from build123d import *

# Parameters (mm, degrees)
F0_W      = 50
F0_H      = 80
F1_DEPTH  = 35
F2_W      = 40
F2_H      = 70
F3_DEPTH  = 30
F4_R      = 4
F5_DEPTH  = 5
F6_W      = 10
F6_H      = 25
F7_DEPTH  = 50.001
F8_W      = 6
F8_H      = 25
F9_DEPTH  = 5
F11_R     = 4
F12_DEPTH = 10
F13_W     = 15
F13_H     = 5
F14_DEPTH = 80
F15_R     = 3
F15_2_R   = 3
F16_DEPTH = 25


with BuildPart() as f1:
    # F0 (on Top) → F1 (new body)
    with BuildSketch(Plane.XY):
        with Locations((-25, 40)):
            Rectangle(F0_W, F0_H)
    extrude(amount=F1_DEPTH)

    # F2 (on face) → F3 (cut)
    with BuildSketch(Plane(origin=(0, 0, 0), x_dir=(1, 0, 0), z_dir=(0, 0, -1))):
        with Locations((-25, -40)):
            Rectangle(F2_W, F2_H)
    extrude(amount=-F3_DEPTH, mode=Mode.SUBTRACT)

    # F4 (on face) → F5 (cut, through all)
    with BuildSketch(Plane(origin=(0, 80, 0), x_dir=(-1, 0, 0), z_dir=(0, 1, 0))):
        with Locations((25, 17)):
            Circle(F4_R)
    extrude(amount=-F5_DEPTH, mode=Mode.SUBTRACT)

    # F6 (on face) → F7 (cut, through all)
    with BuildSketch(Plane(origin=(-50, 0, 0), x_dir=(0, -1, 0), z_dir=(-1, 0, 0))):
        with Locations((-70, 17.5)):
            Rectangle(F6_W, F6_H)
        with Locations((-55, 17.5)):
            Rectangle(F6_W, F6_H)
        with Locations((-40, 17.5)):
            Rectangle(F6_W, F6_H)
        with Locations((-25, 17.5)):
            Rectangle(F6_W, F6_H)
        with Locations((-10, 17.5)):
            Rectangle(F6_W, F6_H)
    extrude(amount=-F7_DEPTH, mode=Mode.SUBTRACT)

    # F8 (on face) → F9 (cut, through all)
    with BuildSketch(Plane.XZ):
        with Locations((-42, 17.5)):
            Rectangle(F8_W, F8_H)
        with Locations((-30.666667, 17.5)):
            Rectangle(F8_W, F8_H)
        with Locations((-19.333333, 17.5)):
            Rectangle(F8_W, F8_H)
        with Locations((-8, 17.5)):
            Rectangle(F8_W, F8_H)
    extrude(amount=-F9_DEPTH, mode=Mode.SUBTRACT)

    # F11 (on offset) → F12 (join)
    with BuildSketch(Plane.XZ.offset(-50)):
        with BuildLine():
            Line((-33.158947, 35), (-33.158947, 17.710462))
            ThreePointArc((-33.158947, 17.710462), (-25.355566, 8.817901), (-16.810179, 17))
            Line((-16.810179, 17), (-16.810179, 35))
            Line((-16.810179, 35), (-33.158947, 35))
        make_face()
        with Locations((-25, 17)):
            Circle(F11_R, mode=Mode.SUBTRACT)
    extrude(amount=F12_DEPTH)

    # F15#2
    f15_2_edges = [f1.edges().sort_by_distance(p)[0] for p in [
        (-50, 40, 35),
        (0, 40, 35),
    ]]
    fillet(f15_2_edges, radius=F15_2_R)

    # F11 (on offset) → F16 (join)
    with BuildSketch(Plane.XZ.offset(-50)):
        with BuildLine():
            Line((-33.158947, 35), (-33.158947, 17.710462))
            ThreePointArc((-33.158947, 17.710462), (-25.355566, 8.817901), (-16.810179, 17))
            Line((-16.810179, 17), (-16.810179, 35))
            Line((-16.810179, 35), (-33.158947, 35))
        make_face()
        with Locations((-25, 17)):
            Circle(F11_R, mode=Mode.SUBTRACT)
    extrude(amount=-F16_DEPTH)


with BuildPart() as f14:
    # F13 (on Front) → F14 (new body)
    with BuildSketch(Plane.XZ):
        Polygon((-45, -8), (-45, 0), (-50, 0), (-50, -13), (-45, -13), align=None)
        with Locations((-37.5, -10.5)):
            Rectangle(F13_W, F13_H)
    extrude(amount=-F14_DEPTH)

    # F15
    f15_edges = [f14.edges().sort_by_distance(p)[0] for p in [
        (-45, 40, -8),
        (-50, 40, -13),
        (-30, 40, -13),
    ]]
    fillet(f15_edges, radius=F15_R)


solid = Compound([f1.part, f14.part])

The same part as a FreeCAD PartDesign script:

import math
import FreeCAD as App
import Part
import Sketcher

V = App.Vector
Q = App.Units.Quantity


def edges_at(feature, points):
    """Names of the edges that pass closest to the given points."""
    edges = feature.Shape.Edges
    near = lambda p: min(range(len(edges)), key=lambda i: edges[i].distToShape(Part.Vertex(*p))[0])
    return sorted({f"Edge{near(p) + 1}" for p in points})

doc = App.newDocument("Part")
body = doc.addObject("PartDesign::Body", "Body")

sketch1 = body.newObject("Sketcher::SketchObject", "Sketch")
sketch1.AttachmentSupport = (doc.getObject("XY_Plane"), [""])
sketch1.MapMode = "FlatFace"
sketch1.addGeometry(Part.LineSegment(V(-50, 80, 0), V(-50, 0, 0)), False)
sketch1.addGeometry(Part.LineSegment(V(-50, 0, 0), V(0, 0, 0)), False)
sketch1.addGeometry(Part.LineSegment(V(0, 0, 0), V(0, 80, 0)), False)
sketch1.addGeometry(Part.LineSegment(V(0, 80, 0), V(-50, 80, 0)), False)
sketch1.addConstraint(Sketcher.Constraint("Coincident", 0, 2, 1, 1))
sketch1.addConstraint(Sketcher.Constraint("Coincident", 1, 2, 2, 1))
sketch1.addConstraint(Sketcher.Constraint("Coincident", 2, 2, 3, 1))
sketch1.addConstraint(Sketcher.Constraint("Coincident", 3, 2, 0, 1))
sketch1.addConstraint(Sketcher.Constraint("Vertical", 0))
sketch1.addConstraint(Sketcher.Constraint("Horizontal", 1))
sketch1.addConstraint(Sketcher.Constraint("Vertical", 2))
sketch1.addConstraint(Sketcher.Constraint("Horizontal", 3))
sketch1.addConstraint(Sketcher.Constraint("Coincident", 1, 2, -1, 1))
sketch1.addConstraint(Sketcher.Constraint("DistanceX", 1, 1, 1, 2, Q("50 mm")))
sketch1.addConstraint(Sketcher.Constraint("DistanceY", 0, 2, 0, 1, Q("80 mm")))
pad1 = body.newObject("PartDesign::Pad", "Pad")
pad1.Profile = sketch1
pad1.Length = 35

sketch2 = body.newObject("Sketcher::SketchObject", "Sketch001")
sketch2.AttachmentSupport = (doc.getObject("XY_Plane"), [""])
sketch2.MapMode = "FlatFace"
sketch2.addGeometry(Part.LineSegment(V(-45, 5, 0), V(-45, 75, 0)), False)
sketch2.addGeometry(Part.LineSegment(V(-45, 75, 0), V(-5, 75, 0)), False)
sketch2.addGeometry(Part.LineSegment(V(-5, 75, 0), V(-5, 5, 0)), False)
sketch2.addGeometry(Part.LineSegment(V(-5, 5, 0), V(-45, 5, 0)), False)
sketch2.addConstraint(Sketcher.Constraint("Coincident", 0, 2, 1, 1))
sketch2.addConstraint(Sketcher.Constraint("Coincident", 1, 2, 2, 1))
sketch2.addConstraint(Sketcher.Constraint("Coincident", 2, 2, 3, 1))
sketch2.addConstraint(Sketcher.Constraint("Coincident", 3, 2, 0, 1))
sketch2.addConstraint(Sketcher.Constraint("Vertical", 0))
sketch2.addConstraint(Sketcher.Constraint("Horizontal", 1))
sketch2.addConstraint(Sketcher.Constraint("Vertical", 2))
sketch2.addConstraint(Sketcher.Constraint("Horizontal", 3))
sketch2.addConstraint(Sketcher.Constraint("DistanceX", 1, 1, 1, 2, Q("40 mm")))
sketch2.addConstraint(Sketcher.Constraint("DistanceY", 0, 1, 0, 2, Q("70 mm")))
sketch2.addConstraint(Sketcher.Constraint("DistanceX", 0, 2, -1, 1, Q("45 mm")))
sketch2.addConstraint(Sketcher.Constraint("DistanceY", -1, 1, 0, 2, Q("75 mm")))
pocket1 = body.newObject("PartDesign::Pocket", "Pocket")
pocket1.Profile = sketch2
pocket1.Length = 30
pocket1.Reversed = True

sketch3 = body.newObject("Sketcher::SketchObject", "Sketch002")
sketch3.AttachmentSupport = (doc.getObject("XZ_Plane"), [""])
sketch3.MapMode = "FlatFace"
sketch3.AttachmentOffset = App.Placement(V(0, 0, -80), App.Rotation())
sketch3.addGeometry(Part.Circle(V(-25, 17, 0), V(0, 0, 1), 4), False)
sketch3.addConstraint(Sketcher.Constraint("Diameter", 0, Q("8 mm")))
sketch3.addConstraint(Sketcher.Constraint("DistanceX", 0, 3, -1, 1, Q("25 mm")))
sketch3.addConstraint(Sketcher.Constraint("DistanceY", -1, 1, 0, 3, Q("17 mm")))
pocket2 = body.newObject("PartDesign::Pocket", "Pocket001")
pocket2.Profile = sketch3
pocket2.Length = 5
pocket2.Reversed = True

sketch4 = body.newObject("Sketcher::SketchObject", "Sketch003")
sketch4.AttachmentSupport = (doc.getObject("YZ_Plane"), [""])
sketch4.MapMode = "FlatFace"
sketch4.AttachmentOffset = App.Placement(V(0, 0, -50), App.Rotation())
sketch4.addGeometry(Part.LineSegment(V(75, 30, 0), V(75, 5, 0)), False)
sketch4.addGeometry(Part.LineSegment(V(75, 5, 0), V(65, 5, 0)), False)
sketch4.addGeometry(Part.LineSegment(V(65, 5, 0), V(65, 30, 0)), False)
sketch4.addGeometry(Part.LineSegment(V(65, 30, 0), V(75, 30, 0)), False)
sketch4.addGeometry(Part.LineSegment(V(60, 30, 0), V(60, 5, 0)), False)
sketch4.addGeometry(Part.LineSegment(V(60, 5, 0), V(50, 5, 0)), False)
sketch4.addGeometry(Part.LineSegment(V(50, 5, 0), V(50, 30, 0)), False)
sketch4.addGeometry(Part.LineSegment(V(50, 30, 0), V(60, 30, 0)), False)
sketch4.addGeometry(Part.LineSegment(V(45, 30, 0), V(45, 5, 0)), False)
sketch4.addGeometry(Part.LineSegment(V(45, 5, 0), V(35, 5, 0)), False)
sketch4.addGeometry(Part.LineSegment(V(35, 5, 0), V(35, 30, 0)), False)
sketch4.addGeometry(Part.LineSegment(V(35, 30, 0), V(45, 30, 0)), False)
sketch4.addGeometry(Part.LineSegment(V(30, 30, 0), V(30, 5, 0)), False)
sketch4.addGeometry(Part.LineSegment(V(30, 5, 0), V(20, 5, 0)), False)
sketch4.addGeometry(Part.LineSegment(V(20, 5, 0), V(20, 30, 0)), False)
sketch4.addGeometry(Part.LineSegment(V(20, 30, 0), V(30, 30, 0)), False)
sketch4.addGeometry(Part.LineSegment(V(15, 30, 0), V(15, 5, 0)), False)
sketch4.addGeometry(Part.LineSegment(V(15, 5, 0), V(5, 5, 0)), False)
sketch4.addGeometry(Part.LineSegment(V(5, 5, 0), V(5, 30, 0)), False)
sketch4.addGeometry(Part.LineSegment(V(5, 30, 0), V(15, 30, 0)), False)
sketch4.addConstraint(Sketcher.Constraint("Coincident", 0, 2, 1, 1))
sketch4.addConstraint(Sketcher.Constraint("Coincident", 1, 2, 2, 1))
sketch4.addConstraint(Sketcher.Constraint("Coincident", 2, 2, 3, 1))
sketch4.addConstraint(Sketcher.Constraint("Coincident", 3, 2, 0, 1))
sketch4.addConstraint(Sketcher.Constraint("Coincident", 4, 2, 5, 1))
sketch4.addConstraint(Sketcher.Constraint("Coincident", 5, 2, 6, 1))
sketch4.addConstraint(Sketcher.Constraint("Coincident", 6, 2, 7, 1))
sketch4.addConstraint(Sketcher.Constraint("Coincident", 7, 2, 4, 1))
sketch4.addConstraint(Sketcher.Constraint("Coincident", 8, 2, 9, 1))
sketch4.addConstraint(Sketcher.Constraint("Coincident", 9, 2, 10, 1))
sketch4.addConstraint(Sketcher.Constraint("Coincident", 10, 2, 11, 1))
sketch4.addConstraint(Sketcher.Constraint("Coincident", 11, 2, 8, 1))
sketch4.addConstraint(Sketcher.Constraint("Coincident", 12, 2, 13, 1))
sketch4.addConstraint(Sketcher.Constraint("Coincident", 13, 2, 14, 1))
sketch4.addConstraint(Sketcher.Constraint("Coincident", 14, 2, 15, 1))
sketch4.addConstraint(Sketcher.Constraint("Coincident", 15, 2, 12, 1))
sketch4.addConstraint(Sketcher.Constraint("Coincident", 16, 2, 17, 1))
sketch4.addConstraint(Sketcher.Constraint("Coincident", 17, 2, 18, 1))
sketch4.addConstraint(Sketcher.Constraint("Coincident", 18, 2, 19, 1))
sketch4.addConstraint(Sketcher.Constraint("Coincident", 19, 2, 16, 1))
sketch4.addConstraint(Sketcher.Constraint("Vertical", 0))
sketch4.addConstraint(Sketcher.Constraint("Horizontal", 1))
sketch4.addConstraint(Sketcher.Constraint("Vertical", 2))
sketch4.addConstraint(Sketcher.Constraint("Horizontal", 3))
sketch4.addConstraint(Sketcher.Constraint("Vertical", 4))
sketch4.addConstraint(Sketcher.Constraint("Horizontal", 5))
sketch4.addConstraint(Sketcher.Constraint("Vertical", 6))
sketch4.addConstraint(Sketcher.Constraint("Horizontal", 7))
sketch4.addConstraint(Sketcher.Constraint("Vertical", 8))
sketch4.addConstraint(Sketcher.Constraint("Horizontal", 9))
sketch4.addConstraint(Sketcher.Constraint("Vertical", 10))
sketch4.addConstraint(Sketcher.Constraint("Horizontal", 11))
sketch4.addConstraint(Sketcher.Constraint("Vertical", 12))
sketch4.addConstraint(Sketcher.Constraint("Horizontal", 13))
sketch4.addConstraint(Sketcher.Constraint("Vertical", 14))
sketch4.addConstraint(Sketcher.Constraint("Horizontal", 15))
sketch4.addConstraint(Sketcher.Constraint("Vertical", 16))
sketch4.addConstraint(Sketcher.Constraint("Horizontal", 17))
sketch4.addConstraint(Sketcher.Constraint("Vertical", 18))
sketch4.addConstraint(Sketcher.Constraint("Horizontal", 19))
sketch4.addConstraint(Sketcher.Constraint("Horizontal", 1, 2, 4, 2))
sketch4.addConstraint(Sketcher.Constraint("Horizontal", 3, 2, 6, 2))
sketch4.addConstraint(Sketcher.Constraint("Horizontal", 5, 2, 8, 2))
sketch4.addConstraint(Sketcher.Constraint("Horizontal", 7, 2, 10, 2))
sketch4.addConstraint(Sketcher.Constraint("Horizontal", 9, 2, 12, 2))
sketch4.addConstraint(Sketcher.Constraint("Horizontal", 11, 2, 14, 2))
sketch4.addConstraint(Sketcher.Constraint("Horizontal", 13, 2, 16, 2))
sketch4.addConstraint(Sketcher.Constraint("Horizontal", 15, 2, 18, 2))
sketch4.addConstraint(Sketcher.Constraint("Equal", 3, 5))
sketch4.addConstraint(Sketcher.Constraint("Equal", 7, 9))
sketch4.addConstraint(Sketcher.Constraint("Equal", 11, 13))
sketch4.addConstraint(Sketcher.Constraint("Equal", 15, 17))
sketch4.addConstraint(Sketcher.Constraint("DistanceX", 1, 2, 1, 1, Q("10 mm")))
sketch4.addConstraint(Sketcher.Constraint("DistanceY", 0, 2, 0, 1, Q("25 mm")))
sketch4.addConstraint(Sketcher.Constraint("DistanceX", -1, 1, 0, 2, Q("75 mm")))
sketch4.addConstraint(Sketcher.Constraint("DistanceY", -1, 1, 0, 2, Q("5 mm")))
sketch4.addConstraint(Sketcher.Constraint("DistanceX", -1, 1, 4, 2, Q("60 mm")))
sketch4.addConstraint(Sketcher.Constraint("DistanceX", -1, 1, 8, 2, Q("45 mm")))
sketch4.addConstraint(Sketcher.Constraint("DistanceX", -1, 1, 12, 2, Q("30 mm")))
sketch4.addConstraint(Sketcher.Constraint("DistanceX", -1, 1, 16, 2, Q("15 mm")))
pocket3 = body.newObject("PartDesign::Pocket", "Pocket002")
pocket3.Profile = sketch4
pocket3.Type = "ThroughAll"
pocket3.Reversed = True

sketch5 = body.newObject("Sketcher::SketchObject", "Sketch004")
sketch5.AttachmentSupport = (doc.getObject("XZ_Plane"), [""])
sketch5.MapMode = "FlatFace"
sketch5.addGeometry(Part.LineSegment(V(-45, 30, 0), V(-45, 5, 0)), False)
sketch5.addGeometry(Part.LineSegment(V(-45, 5, 0), V(-39, 5, 0)), False)
sketch5.addGeometry(Part.LineSegment(V(-39, 5, 0), V(-39, 30, 0)), False)
sketch5.addGeometry(Part.LineSegment(V(-39, 30, 0), V(-45, 30, 0)), False)
sketch5.addGeometry(Part.LineSegment(V(-34, 30, 0), V(-34, 5, 0)), False)
sketch5.addGeometry(Part.LineSegment(V(-34, 5, 0), V(-28, 5, 0)), False)
sketch5.addGeometry(Part.LineSegment(V(-28, 5, 0), V(-28, 30, 0)), False)
sketch5.addGeometry(Part.LineSegment(V(-28, 30, 0), V(-34, 30, 0)), False)
sketch5.addGeometry(Part.LineSegment(V(-22, 30, 0), V(-22, 5, 0)), False)
sketch5.addGeometry(Part.LineSegment(V(-22, 5, 0), V(-16, 5, 0)), False)
sketch5.addGeometry(Part.LineSegment(V(-16, 5, 0), V(-16, 30, 0)), False)
sketch5.addGeometry(Part.LineSegment(V(-16, 30, 0), V(-22, 30, 0)), False)
sketch5.addGeometry(Part.LineSegment(V(-11, 30, 0), V(-11, 5, 0)), False)
sketch5.addGeometry(Part.LineSegment(V(-11, 5, 0), V(-5, 5, 0)), False)
sketch5.addGeometry(Part.LineSegment(V(-5, 5, 0), V(-5, 30, 0)), False)
sketch5.addGeometry(Part.LineSegment(V(-5, 30, 0), V(-11, 30, 0)), False)
sketch5.addConstraint(Sketcher.Constraint("Coincident", 0, 2, 1, 1))
sketch5.addConstraint(Sketcher.Constraint("Coincident", 1, 2, 2, 1))
sketch5.addConstraint(Sketcher.Constraint("Coincident", 2, 2, 3, 1))
sketch5.addConstraint(Sketcher.Constraint("Coincident", 3, 2, 0, 1))
sketch5.addConstraint(Sketcher.Constraint("Coincident", 4, 2, 5, 1))
sketch5.addConstraint(Sketcher.Constraint("Coincident", 5, 2, 6, 1))
sketch5.addConstraint(Sketcher.Constraint("Coincident", 6, 2, 7, 1))
sketch5.addConstraint(Sketcher.Constraint("Coincident", 7, 2, 4, 1))
sketch5.addConstraint(Sketcher.Constraint("Coincident", 8, 2, 9, 1))
sketch5.addConstraint(Sketcher.Constraint("Coincident", 9, 2, 10, 1))
sketch5.addConstraint(Sketcher.Constraint("Coincident", 10, 2, 11, 1))
sketch5.addConstraint(Sketcher.Constraint("Coincident", 11, 2, 8, 1))
sketch5.addConstraint(Sketcher.Constraint("Coincident", 12, 2, 13, 1))
sketch5.addConstraint(Sketcher.Constraint("Coincident", 13, 2, 14, 1))
sketch5.addConstraint(Sketcher.Constraint("Coincident", 14, 2, 15, 1))
sketch5.addConstraint(Sketcher.Constraint("Coincident", 15, 2, 12, 1))
sketch5.addConstraint(Sketcher.Constraint("Vertical", 0))
sketch5.addConstraint(Sketcher.Constraint("Horizontal", 1))
sketch5.addConstraint(Sketcher.Constraint("Vertical", 2))
sketch5.addConstraint(Sketcher.Constraint("Horizontal", 3))
sketch5.addConstraint(Sketcher.Constraint("Vertical", 4))
sketch5.addConstraint(Sketcher.Constraint("Horizontal", 5))
sketch5.addConstraint(Sketcher.Constraint("Vertical", 6))
sketch5.addConstraint(Sketcher.Constraint("Horizontal", 7))
sketch5.addConstraint(Sketcher.Constraint("Vertical", 8))
sketch5.addConstraint(Sketcher.Constraint("Horizontal", 9))
sketch5.addConstraint(Sketcher.Constraint("Vertical", 10))
sketch5.addConstraint(Sketcher.Constraint("Horizontal", 11))
sketch5.addConstraint(Sketcher.Constraint("Vertical", 12))
sketch5.addConstraint(Sketcher.Constraint("Horizontal", 13))
sketch5.addConstraint(Sketcher.Constraint("Vertical", 14))
sketch5.addConstraint(Sketcher.Constraint("Horizontal", 15))
sketch5.addConstraint(Sketcher.Constraint("Horizontal", 1, 2, 4, 2))
sketch5.addConstraint(Sketcher.Constraint("Horizontal", 3, 2, 6, 2))
sketch5.addConstraint(Sketcher.Constraint("Horizontal", 5, 2, 8, 2))
sketch5.addConstraint(Sketcher.Constraint("Horizontal", 7, 2, 10, 2))
sketch5.addConstraint(Sketcher.Constraint("Horizontal", 9, 2, 12, 2))
sketch5.addConstraint(Sketcher.Constraint("Horizontal", 11, 2, 14, 2))
sketch5.addConstraint(Sketcher.Constraint("Equal", 3, 5))
sketch5.addConstraint(Sketcher.Constraint("Equal", 7, 9))
sketch5.addConstraint(Sketcher.Constraint("Equal", 11, 13))
sketch5.addConstraint(Sketcher.Constraint("DistanceX", 1, 1, 1, 2, Q("6 mm")))
sketch5.addConstraint(Sketcher.Constraint("DistanceY", 0, 2, 0, 1, Q("25 mm")))
sketch5.addConstraint(Sketcher.Constraint("DistanceX", 0, 2, -1, 1, Q("45 mm")))
sketch5.addConstraint(Sketcher.Constraint("DistanceY", -1, 1, 0, 2, Q("5 mm")))
sketch5.addConstraint(Sketcher.Constraint("DistanceX", 12, 2, -1, 1, Q("11 mm")))
sketch5.addConstraint(Sketcher.Constraint("DistanceX", 4, 2, -1, 1, Q("33.666667 mm")))
sketch5.addConstraint(Sketcher.Constraint("DistanceX", 8, 2, -1, 1, Q("22.333333 mm")))
pocket4 = body.newObject("PartDesign::Pocket", "Pocket003")
pocket4.Profile = sketch5
pocket4.Length = 5

sketch6 = body.newObject("Sketcher::SketchObject", "Sketch005")
sketch6.AttachmentSupport = (doc.getObject("XZ_Plane"), [""])
sketch6.MapMode = "FlatFace"
sketch6.AttachmentOffset = App.Placement(V(0, 0, -50), App.Rotation())
sketch6.addGeometry(Part.LineSegment(V(-33.2, 35, 0), V(-33.2, 17.7, 0)), False)
sketch6.addGeometry(Part.ArcOfCircle(Part.Circle(V(-25, 17, 0), V(0, 0, 1), 8.2), math.radians(175), math.radians(360)), False)
sketch6.addGeometry(Part.LineSegment(V(-16.8, 17, 0), V(-16.8, 35, 0)), False)
sketch6.addGeometry(Part.LineSegment(V(-16.8, 35, 0), V(-33.2, 35, 0)), False)
sketch6.addGeometry(Part.Circle(V(-25, 17, 0), V(0, 0, 1), 4), False)
sketch6.addConstraint(Sketcher.Constraint("Coincident", 0, 2, 1, 1))
sketch6.addConstraint(Sketcher.Constraint("Tangent", 1, 2, 2, 1))
sketch6.addConstraint(Sketcher.Constraint("Coincident", 2, 2, 3, 1))
sketch6.addConstraint(Sketcher.Constraint("Coincident", 3, 2, 0, 1))
sketch6.addConstraint(Sketcher.Constraint("Vertical", 0))
sketch6.addConstraint(Sketcher.Constraint("Vertical", 2))
sketch6.addConstraint(Sketcher.Constraint("Horizontal", 3))
sketch6.addConstraint(Sketcher.Constraint("Coincident", 4, 3, 1, 3))
sketch6.addConstraint(Sketcher.Constraint("Diameter", 4, Q("8 mm")))
sketch6.addConstraint(Sketcher.Constraint("DistanceY", 2, 1, 2, 2, Q("18 mm")))
sketch6.addConstraint(Sketcher.Constraint("DistanceX", 1, 3, -1, 1, Q("25 mm")))
sketch6.addConstraint(Sketcher.Constraint("DistanceY", -1, 1, 1, 3, Q("17 mm")))
sketch6.addConstraint(Sketcher.Constraint("Radius", 1, Q("8.189821 mm")))
sketch6.addConstraint(Sketcher.Constraint("DistanceY", 0, 2, 0, 1, Q("17.289538 mm")))
pad2 = body.newObject("PartDesign::Pad", "Pad001")
pad2.Profile = sketch6
pad2.Length = 10
doc.recompute()

fillet = body.newObject("PartDesign::Fillet", "Fillet")
fillet.Base = (pad2, edges_at(pad2, [(-50, 40, 35), (0, 40, 35)]))
fillet.Radius = 3

sketch7 = body.newObject("Sketcher::SketchObject", "Sketch006")
sketch7.AttachmentSupport = (doc.getObject("XZ_Plane"), [""])
sketch7.MapMode = "FlatFace"
sketch7.AttachmentOffset = App.Placement(V(0, 0, -50), App.Rotation())
sketch7.addGeometry(Part.LineSegment(V(-33.2, 35, 0), V(-33.2, 17.7, 0)), False)
sketch7.addGeometry(Part.ArcOfCircle(Part.Circle(V(-25, 17, 0), V(0, 0, 1), 8.2), math.radians(175), math.radians(360)), False)
sketch7.addGeometry(Part.LineSegment(V(-16.8, 17, 0), V(-16.8, 35, 0)), False)
sketch7.addGeometry(Part.LineSegment(V(-16.8, 35, 0), V(-33.2, 35, 0)), False)
sketch7.addGeometry(Part.Circle(V(-25, 17, 0), V(0, 0, 1), 4), False)
sketch7.addConstraint(Sketcher.Constraint("Coincident", 0, 2, 1, 1))
sketch7.addConstraint(Sketcher.Constraint("Tangent", 1, 2, 2, 1))
sketch7.addConstraint(Sketcher.Constraint("Coincident", 2, 2, 3, 1))
sketch7.addConstraint(Sketcher.Constraint("Coincident", 3, 2, 0, 1))
sketch7.addConstraint(Sketcher.Constraint("Vertical", 0))
sketch7.addConstraint(Sketcher.Constraint("Vertical", 2))
sketch7.addConstraint(Sketcher.Constraint("Horizontal", 3))
sketch7.addConstraint(Sketcher.Constraint("Coincident", 4, 3, 1, 3))
sketch7.addConstraint(Sketcher.Constraint("Diameter", 4, Q("8 mm")))
sketch7.addConstraint(Sketcher.Constraint("DistanceY", 2, 1, 2, 2, Q("18 mm")))
sketch7.addConstraint(Sketcher.Constraint("DistanceX", 1, 3, -1, 1, Q("25 mm")))
sketch7.addConstraint(Sketcher.Constraint("DistanceY", -1, 1, 1, 3, Q("17 mm")))
sketch7.addConstraint(Sketcher.Constraint("Radius", 1, Q("8.189821 mm")))
sketch7.addConstraint(Sketcher.Constraint("DistanceY", 0, 2, 0, 1, Q("17.289538 mm")))
pad3 = body.newObject("PartDesign::Pad", "Pad002")
pad3.Profile = sketch7
pad3.Length = 25
pad3.Reversed = True
body2 = doc.addObject("PartDesign::Body", "Body001")

sketch8 = body2.newObject("Sketcher::SketchObject", "Sketch007")
sketch8.AttachmentSupport = (doc.getObject("XZ_Plane001"), [""])
sketch8.MapMode = "FlatFace"
sketch8.addGeometry(Part.LineSegment(V(-45, 0, 0), V(-50, 0, 0)), False)
sketch8.addGeometry(Part.LineSegment(V(-50, 0, 0), V(-50, -13, 0)), False)
sketch8.addGeometry(Part.LineSegment(V(-50, -13, 0), V(-30, -13, 0)), False)
sketch8.addGeometry(Part.LineSegment(V(-30, -13, 0), V(-30, -8, 0)), False)
sketch8.addGeometry(Part.LineSegment(V(-30, -8, 0), V(-45, -8, 0)), False)
sketch8.addGeometry(Part.LineSegment(V(-45, -8, 0), V(-45, 0, 0)), False)
sketch8.addConstraint(Sketcher.Constraint("Coincident", 0, 2, 1, 1))
sketch8.addConstraint(Sketcher.Constraint("Coincident", 1, 2, 2, 1))
sketch8.addConstraint(Sketcher.Constraint("Coincident", 2, 2, 3, 1))
sketch8.addConstraint(Sketcher.Constraint("Coincident", 3, 2, 4, 1))
sketch8.addConstraint(Sketcher.Constraint("Coincident", 4, 2, 5, 1))
sketch8.addConstraint(Sketcher.Constraint("Coincident", 5, 2, 0, 1))
sketch8.addConstraint(Sketcher.Constraint("Horizontal", 0))
sketch8.addConstraint(Sketcher.Constraint("Vertical", 1))
sketch8.addConstraint(Sketcher.Constraint("Horizontal", 2))
sketch8.addConstraint(Sketcher.Constraint("Vertical", 3))
sketch8.addConstraint(Sketcher.Constraint("Horizontal", 4))
sketch8.addConstraint(Sketcher.Constraint("Vertical", 5))
sketch8.addConstraint(Sketcher.Constraint("PointOnObject", 0, 2, -1))
sketch8.addConstraint(Sketcher.Constraint("Equal", 0, 3))
sketch8.addConstraint(Sketcher.Constraint("DistanceX", 0, 2, 0, 1, Q("5 mm")))
sketch8.addConstraint(Sketcher.Constraint("DistanceX", 2, 1, 2, 2, Q("20 mm")))
sketch8.addConstraint(Sketcher.Constraint("DistanceY", 1, 2, 1, 1, Q("13 mm")))
sketch8.addConstraint(Sketcher.Constraint("DistanceX", 0, 2, -1, 1, Q("50 mm")))
pad4 = body2.newObject("PartDesign::Pad", "Pad003")
pad4.Profile = sketch8
pad4.Length = 80
pad4.Reversed = True
doc.recompute()

fillet2 = body2.newObject("PartDesign::Fillet", "Fillet001")
fillet2.Base = (pad4, edges_at(pad4, [(-45, 40, -8), (-50, 40, -13), (-30, 40, -13)]))
fillet2.Radius = 3

doc.recompute()
